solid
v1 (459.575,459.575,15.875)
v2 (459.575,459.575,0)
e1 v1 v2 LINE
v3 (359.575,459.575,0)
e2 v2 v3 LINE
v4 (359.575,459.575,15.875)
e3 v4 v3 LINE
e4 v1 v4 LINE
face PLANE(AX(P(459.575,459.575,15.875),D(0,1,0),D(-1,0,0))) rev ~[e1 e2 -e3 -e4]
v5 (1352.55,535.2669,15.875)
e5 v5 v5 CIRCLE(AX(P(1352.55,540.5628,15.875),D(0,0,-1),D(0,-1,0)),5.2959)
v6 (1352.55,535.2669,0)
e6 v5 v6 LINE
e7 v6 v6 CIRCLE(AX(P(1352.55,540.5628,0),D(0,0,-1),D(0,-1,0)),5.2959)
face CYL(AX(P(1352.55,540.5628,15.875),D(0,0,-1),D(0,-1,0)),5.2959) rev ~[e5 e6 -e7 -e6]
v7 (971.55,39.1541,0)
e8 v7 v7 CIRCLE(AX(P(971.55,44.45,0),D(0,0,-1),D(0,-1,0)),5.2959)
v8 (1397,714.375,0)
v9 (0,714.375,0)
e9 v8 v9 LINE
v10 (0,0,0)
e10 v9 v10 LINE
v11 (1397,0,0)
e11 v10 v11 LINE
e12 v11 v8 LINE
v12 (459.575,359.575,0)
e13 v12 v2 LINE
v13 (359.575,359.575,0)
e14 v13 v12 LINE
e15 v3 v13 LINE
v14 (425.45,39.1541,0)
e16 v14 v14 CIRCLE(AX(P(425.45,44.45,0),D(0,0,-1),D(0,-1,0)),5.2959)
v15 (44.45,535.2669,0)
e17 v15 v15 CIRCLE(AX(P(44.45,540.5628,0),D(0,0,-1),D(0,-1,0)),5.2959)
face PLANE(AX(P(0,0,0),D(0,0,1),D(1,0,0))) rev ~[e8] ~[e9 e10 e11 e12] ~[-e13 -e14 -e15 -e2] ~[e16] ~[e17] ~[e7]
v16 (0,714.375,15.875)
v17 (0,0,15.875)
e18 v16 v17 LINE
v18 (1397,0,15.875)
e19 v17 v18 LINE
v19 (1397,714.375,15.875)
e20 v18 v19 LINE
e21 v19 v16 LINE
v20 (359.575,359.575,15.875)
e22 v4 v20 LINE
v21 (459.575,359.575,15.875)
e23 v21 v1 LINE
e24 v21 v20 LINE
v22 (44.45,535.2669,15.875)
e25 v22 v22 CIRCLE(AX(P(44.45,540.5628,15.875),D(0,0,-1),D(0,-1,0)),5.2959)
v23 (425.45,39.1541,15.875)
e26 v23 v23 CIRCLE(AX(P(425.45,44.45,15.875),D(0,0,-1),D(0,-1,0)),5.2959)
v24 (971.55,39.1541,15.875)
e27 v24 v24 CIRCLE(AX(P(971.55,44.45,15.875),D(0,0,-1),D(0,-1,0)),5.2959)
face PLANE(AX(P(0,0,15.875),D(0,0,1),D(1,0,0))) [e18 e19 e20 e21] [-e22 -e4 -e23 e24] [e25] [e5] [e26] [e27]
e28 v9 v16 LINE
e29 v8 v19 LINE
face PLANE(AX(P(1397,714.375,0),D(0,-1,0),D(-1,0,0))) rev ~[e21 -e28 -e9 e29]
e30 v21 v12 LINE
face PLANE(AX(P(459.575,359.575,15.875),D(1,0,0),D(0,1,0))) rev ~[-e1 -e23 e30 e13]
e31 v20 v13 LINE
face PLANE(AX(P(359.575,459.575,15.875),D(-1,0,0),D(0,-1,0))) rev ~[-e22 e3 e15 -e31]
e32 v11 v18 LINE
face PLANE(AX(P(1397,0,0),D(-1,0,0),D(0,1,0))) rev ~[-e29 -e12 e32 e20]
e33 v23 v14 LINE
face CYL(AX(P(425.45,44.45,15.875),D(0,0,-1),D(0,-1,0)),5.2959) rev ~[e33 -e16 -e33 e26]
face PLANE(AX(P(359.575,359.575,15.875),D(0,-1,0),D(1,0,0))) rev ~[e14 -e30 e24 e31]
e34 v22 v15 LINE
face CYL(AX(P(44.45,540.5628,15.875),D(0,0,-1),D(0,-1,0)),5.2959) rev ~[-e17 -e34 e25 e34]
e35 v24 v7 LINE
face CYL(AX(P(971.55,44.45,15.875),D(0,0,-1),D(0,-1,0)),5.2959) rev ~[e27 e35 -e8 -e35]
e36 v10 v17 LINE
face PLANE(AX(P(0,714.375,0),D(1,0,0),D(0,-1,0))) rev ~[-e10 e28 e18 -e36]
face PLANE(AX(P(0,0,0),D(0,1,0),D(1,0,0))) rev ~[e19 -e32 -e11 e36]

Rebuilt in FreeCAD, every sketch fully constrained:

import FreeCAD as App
import Part
import Sketcher
Q = App.Units.Quantity


def add_polygon(sketch, points):
    """Adds a closed chain of lines whose ends are joined by coincident constraints."""
    first, n = sketch.GeometryCount, len(points)
    for a, b in zip(points, points[1:] + points[:1]):
        sketch.addGeometry(Part.LineSegment(App.Vector(*a, 0), App.Vector(*b, 0)), False)
    for i in range(n):
        sketch.addConstraint(Sketcher.Constraint("Coincident", first + i, 2, first + (i + 1) % n, 1))

doc = App.newDocument("Part")
body = doc.addObject("PartDesign::Body", "Body")

sketch1 = body.newObject("Sketcher::SketchObject", "Sketch")
sketch1.AttachmentSupport = (doc.getObject("XY_Plane"), [""])
sketch1.MapMode = "FlatFace"
add_polygon(sketch1, [(0, 714.375), (0, 0), (1397, 0), (1397, 714.375)])
sketch1.addConstraint(Sketcher.Constraint("Vertical", 0))
sketch1.addConstraint(Sketcher.Constraint("Horizontal", 1))
sketch1.addConstraint(Sketcher.Constraint("Vertical", 2))
sketch1.addConstraint(Sketcher.Constraint("Horizontal", 3))
sketch1.addConstraint(Sketcher.Constraint("Coincident", 0, 2, -1, 1))
sketch1.addConstraint(Sketcher.Constraint("DistanceX", 1, 1, 1, 2, Q("55 in")))
sketch1.addConstraint(Sketcher.Constraint("DistanceY", 0, 2, 0, 1, Q("28.125 in")))
pad1 = body.newObject("PartDesign::Pad", "Pad")
pad1.Profile = sketch1
pad1.Length = Q("0.625 in")

sketch2 = body.newObject("Sketcher::SketchObject", "Sketch001")
sketch2.AttachmentSupport = (doc.getObject("XY_Plane"), [""])
sketch2.MapMode = "FlatFace"
sketch2.AttachmentOffset = App.Placement(App.Vector(0, 0, 0.625 * 25.4), App.Rotation())
sketch2.addGeometry(Part.Circle(App.Vector(44.45, 540.5628, 0), App.Vector(0, 0, 1), 5.2959), False)
sketch2.addGeometry(Part.Circle(App.Vector(425.45, 44.45, 0), App.Vector(0, 0, 1), 5.2959), False)
sketch2.addGeometry(Part.Circle(App.Vector(971.55, 44.45, 0), App.Vector(0, 0, 1), 5.2959), False)
sketch2.addGeometry(Part.Circle(App.Vector(1352.55, 540.5628, 0), App.Vector(0, 0, 1), 5.2959), False)
sketch2.addConstraint(Sketcher.Constraint("Equal", 0, 1))
sketch2.addConstraint(Sketcher.Constraint("Equal", 1, 2))
sketch2.addConstraint(Sketcher.Constraint("Equal", 2, 3))
sketch2.addConstraint(Sketcher.Constraint("Horizontal", 1, 3, 2, 3))
sketch2.addConstraint(Sketcher.Constraint("Horizontal", 0, 3, 3, 3))
sketch2.addConstraint(Sketcher.Constraint("Diameter", 0, Q("0.417 in")))
sketch2.addConstraint(Sketcher.Constraint("DistanceX", 0, 3, 1, 3, Q("15 in")))
sketch2.addConstraint(Sketcher.Constraint("DistanceX", 2, 3, 3, 3, Q("15 in")))
sketch2.addConstraint(Sketcher.Constraint("DistanceX", 1, 3, 2, 3, Q("21.5 in")))
sketch2.addConstraint(Sketcher.Constraint("DistanceX", -1, 1, 0, 3, Q("1.75 in")))
sketch2.addConstraint(Sketcher.Constraint("DistanceY", -1, 1, 1, 3, Q("1.75 in")))
sketch2.addConstraint(Sketcher.Constraint("DistanceY", -1, 1, 0, 3, Q("21.282 in")))
doc.recompute()
hole = body.newObject("PartDesign::Hole", "Hole")
hole.Profile = sketch2
hole.ThreadType = "None"
hole.Diameter = Q("0.417 in")
hole.DepthType = "Dimension"
hole.Depth = Q("1.385 in")
hole.DrillPoint = "Angled"
hole.DrillPointAngle = 118

sketch3 = body.newObject("Sketcher::SketchObject", "Sketch002")
sketch3.AttachmentSupport = (doc.getObject("XY_Plane"), [""])
sketch3.MapMode = "FlatFace"
sketch3.AttachmentOffset = App.Placement(App.Vector(0, 0, 0.625 * 25.4), App.Rotation())
add_polygon(sketch3, [(359.575, 459.575), (359.575, 359.575), (459.575, 359.575), (459.575, 459.575)])
sketch3.addConstraint(Sketcher.Constraint("Vertical", 0))
sketch3.addConstraint(Sketcher.Constraint("Horizontal", 1))
sketch3.addConstraint(Sketcher.Constraint("Vertical", 2))
sketch3.addConstraint(Sketcher.Constraint("Horizontal", 3))
sketch3.addConstraint(Sketcher.Constraint("Equal", 3, 0))
sketch3.addConstraint(Sketcher.Constraint("DistanceX", 1, 1, 1, 2, Q("3.937 in")))
sketch3.addConstraint(Sketcher.Constraint("DistanceX", -1, 1, 0, 2, Q("14.1565 in")))
sketch3.addConstraint(Sketcher.Constraint("DistanceY", -1, 1, 0, 2, Q("14.1565 in")))
pocket1 = body.newObject("PartDesign::Pocket", "Pocket")
pocket1.Profile = sketch3
pocket1.Length = Q("0.625 in")

doc.recompute()
